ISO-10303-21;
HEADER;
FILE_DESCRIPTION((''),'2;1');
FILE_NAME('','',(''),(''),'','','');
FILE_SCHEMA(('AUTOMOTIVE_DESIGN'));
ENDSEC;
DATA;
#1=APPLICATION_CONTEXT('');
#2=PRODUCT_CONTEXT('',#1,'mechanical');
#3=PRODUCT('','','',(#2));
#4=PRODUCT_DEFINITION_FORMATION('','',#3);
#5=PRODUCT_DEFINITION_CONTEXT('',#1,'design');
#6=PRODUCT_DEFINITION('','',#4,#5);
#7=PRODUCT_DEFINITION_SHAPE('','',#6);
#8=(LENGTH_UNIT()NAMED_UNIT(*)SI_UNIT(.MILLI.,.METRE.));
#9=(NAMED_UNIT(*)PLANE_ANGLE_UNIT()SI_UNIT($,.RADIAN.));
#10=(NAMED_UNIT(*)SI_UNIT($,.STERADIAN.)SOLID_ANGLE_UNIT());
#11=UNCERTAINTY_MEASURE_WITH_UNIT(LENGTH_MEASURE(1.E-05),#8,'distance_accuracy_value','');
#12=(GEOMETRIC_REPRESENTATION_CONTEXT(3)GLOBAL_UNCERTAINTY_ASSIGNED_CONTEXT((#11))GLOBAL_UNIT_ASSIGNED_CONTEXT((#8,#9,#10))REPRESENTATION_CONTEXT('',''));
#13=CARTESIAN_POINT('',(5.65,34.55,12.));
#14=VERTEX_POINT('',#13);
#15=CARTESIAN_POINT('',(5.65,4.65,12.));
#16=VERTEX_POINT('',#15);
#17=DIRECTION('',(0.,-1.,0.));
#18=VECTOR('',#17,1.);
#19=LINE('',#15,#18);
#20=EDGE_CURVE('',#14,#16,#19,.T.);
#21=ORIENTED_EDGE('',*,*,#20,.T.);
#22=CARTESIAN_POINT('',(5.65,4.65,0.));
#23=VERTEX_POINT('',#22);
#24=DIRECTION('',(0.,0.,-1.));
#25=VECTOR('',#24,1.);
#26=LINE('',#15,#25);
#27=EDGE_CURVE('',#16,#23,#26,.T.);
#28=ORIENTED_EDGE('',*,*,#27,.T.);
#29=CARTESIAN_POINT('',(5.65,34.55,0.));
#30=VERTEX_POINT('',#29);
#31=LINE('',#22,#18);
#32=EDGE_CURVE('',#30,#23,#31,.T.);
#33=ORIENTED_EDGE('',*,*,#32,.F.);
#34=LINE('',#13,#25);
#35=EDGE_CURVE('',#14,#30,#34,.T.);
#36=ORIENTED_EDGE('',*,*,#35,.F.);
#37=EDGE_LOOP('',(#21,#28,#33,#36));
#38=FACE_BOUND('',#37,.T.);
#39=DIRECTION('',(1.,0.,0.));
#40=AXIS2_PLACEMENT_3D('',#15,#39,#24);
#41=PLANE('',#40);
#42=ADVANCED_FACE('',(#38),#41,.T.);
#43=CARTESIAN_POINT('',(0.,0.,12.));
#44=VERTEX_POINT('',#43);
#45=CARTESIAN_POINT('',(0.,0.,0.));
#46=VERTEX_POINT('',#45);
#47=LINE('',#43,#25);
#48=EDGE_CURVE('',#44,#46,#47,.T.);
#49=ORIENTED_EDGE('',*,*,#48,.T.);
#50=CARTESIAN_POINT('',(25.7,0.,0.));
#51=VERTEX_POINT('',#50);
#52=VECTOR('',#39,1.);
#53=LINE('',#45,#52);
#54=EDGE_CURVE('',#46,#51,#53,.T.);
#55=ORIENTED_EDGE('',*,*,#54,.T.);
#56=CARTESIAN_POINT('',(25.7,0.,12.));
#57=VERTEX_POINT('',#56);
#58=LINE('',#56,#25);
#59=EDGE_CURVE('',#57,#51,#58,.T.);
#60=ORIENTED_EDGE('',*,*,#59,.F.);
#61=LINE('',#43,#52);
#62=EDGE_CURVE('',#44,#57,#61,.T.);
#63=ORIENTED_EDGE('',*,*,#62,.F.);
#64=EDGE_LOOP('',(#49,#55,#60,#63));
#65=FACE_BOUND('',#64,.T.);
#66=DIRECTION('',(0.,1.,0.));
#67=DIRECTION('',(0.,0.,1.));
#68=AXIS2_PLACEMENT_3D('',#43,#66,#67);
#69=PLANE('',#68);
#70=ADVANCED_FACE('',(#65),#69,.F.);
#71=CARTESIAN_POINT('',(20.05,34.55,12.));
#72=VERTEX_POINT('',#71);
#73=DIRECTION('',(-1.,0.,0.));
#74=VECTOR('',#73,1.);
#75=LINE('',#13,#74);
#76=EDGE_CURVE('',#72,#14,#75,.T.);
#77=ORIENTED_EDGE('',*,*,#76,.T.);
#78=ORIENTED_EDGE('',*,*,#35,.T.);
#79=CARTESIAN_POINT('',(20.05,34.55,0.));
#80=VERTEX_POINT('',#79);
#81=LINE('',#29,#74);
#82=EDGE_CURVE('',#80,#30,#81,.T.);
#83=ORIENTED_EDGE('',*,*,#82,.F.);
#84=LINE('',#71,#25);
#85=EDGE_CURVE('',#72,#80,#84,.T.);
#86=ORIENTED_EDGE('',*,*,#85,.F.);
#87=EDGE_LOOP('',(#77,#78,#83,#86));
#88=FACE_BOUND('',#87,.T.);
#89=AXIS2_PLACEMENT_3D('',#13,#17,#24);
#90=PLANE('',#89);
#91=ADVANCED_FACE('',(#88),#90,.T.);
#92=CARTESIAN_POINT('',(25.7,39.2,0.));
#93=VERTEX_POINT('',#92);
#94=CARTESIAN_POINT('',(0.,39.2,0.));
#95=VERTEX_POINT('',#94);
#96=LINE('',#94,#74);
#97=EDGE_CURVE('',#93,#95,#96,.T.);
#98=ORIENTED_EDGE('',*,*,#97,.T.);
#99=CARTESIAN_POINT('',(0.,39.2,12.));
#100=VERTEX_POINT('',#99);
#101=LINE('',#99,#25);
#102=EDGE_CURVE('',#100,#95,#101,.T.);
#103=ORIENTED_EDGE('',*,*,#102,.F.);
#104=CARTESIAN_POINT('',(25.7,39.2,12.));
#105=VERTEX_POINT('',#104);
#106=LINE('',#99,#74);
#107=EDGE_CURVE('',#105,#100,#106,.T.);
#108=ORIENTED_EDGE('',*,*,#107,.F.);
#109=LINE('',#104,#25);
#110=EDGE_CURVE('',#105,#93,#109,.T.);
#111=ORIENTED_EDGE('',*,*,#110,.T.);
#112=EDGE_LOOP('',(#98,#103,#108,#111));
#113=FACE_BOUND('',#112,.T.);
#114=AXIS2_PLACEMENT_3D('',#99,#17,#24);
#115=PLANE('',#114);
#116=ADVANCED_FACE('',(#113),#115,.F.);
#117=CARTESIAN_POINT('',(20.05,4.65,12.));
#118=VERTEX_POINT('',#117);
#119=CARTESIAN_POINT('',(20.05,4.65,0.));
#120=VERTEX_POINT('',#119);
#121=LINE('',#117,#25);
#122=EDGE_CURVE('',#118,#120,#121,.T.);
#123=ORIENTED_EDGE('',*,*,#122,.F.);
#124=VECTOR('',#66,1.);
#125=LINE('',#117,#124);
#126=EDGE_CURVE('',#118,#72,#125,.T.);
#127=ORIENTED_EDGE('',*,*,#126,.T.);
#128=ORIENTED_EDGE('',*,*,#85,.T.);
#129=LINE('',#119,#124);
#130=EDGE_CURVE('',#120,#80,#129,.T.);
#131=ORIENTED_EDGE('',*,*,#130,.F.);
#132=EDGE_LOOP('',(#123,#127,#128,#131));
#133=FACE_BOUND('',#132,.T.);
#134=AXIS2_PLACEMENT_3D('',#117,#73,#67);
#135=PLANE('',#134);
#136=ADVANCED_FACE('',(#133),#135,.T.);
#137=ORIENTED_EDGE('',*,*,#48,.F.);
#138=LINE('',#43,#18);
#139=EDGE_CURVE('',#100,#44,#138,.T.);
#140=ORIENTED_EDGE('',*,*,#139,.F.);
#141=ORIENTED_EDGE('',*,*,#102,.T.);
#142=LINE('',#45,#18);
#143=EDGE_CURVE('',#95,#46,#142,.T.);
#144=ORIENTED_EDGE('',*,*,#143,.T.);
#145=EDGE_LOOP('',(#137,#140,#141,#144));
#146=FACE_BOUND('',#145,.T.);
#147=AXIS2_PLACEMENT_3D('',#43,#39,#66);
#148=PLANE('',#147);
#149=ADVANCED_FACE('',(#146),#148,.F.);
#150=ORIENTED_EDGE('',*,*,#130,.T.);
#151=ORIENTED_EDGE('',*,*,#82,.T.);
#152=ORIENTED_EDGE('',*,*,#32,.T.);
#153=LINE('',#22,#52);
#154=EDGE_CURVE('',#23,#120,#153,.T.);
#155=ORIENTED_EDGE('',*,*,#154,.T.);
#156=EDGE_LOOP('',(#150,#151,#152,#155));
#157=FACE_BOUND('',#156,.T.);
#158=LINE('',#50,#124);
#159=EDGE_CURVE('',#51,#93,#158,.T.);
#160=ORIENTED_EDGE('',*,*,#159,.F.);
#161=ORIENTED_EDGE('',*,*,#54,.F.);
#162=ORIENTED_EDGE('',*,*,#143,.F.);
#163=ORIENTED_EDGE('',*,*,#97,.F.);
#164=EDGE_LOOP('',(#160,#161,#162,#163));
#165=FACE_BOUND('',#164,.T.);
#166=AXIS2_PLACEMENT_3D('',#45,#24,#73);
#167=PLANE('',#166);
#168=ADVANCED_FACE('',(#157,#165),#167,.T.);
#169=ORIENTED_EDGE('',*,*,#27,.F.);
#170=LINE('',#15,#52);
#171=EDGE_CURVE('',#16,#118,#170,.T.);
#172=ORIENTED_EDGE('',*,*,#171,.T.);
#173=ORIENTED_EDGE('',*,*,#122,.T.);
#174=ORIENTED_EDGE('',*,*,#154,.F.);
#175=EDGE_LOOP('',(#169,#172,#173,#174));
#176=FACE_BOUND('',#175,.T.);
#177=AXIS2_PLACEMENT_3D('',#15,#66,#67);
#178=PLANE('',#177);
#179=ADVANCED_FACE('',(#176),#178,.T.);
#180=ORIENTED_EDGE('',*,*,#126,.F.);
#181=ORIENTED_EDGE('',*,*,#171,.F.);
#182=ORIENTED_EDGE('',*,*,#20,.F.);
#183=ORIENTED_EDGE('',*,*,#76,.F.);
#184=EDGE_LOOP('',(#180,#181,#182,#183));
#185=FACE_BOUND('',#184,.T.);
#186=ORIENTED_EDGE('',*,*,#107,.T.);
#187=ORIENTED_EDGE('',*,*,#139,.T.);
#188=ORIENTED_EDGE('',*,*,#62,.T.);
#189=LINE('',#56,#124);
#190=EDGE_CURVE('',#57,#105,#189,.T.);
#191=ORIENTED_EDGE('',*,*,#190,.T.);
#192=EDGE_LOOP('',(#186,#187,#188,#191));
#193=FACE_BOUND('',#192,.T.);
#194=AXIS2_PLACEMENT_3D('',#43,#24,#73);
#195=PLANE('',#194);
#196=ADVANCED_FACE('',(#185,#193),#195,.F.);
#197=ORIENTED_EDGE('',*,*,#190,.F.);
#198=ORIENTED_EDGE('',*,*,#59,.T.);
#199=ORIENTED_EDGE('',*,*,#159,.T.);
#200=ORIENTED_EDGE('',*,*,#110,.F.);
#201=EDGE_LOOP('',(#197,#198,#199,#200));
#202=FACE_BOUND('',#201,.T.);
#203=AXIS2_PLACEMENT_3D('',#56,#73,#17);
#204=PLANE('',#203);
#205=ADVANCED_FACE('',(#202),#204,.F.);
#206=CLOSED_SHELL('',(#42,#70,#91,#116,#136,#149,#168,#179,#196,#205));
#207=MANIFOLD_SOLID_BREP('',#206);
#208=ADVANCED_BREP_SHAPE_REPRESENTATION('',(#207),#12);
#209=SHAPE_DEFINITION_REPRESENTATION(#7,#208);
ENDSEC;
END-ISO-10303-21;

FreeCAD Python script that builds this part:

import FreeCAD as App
import Part
import Sketcher
from FreeCAD import Vector

doc = App.newDocument("Part")
body = doc.addObject("PartDesign::Body", "Body")

# Sketch on XY plane
sketch1 = body.newObject("Sketcher::SketchObject", "Sketch")
sketch1.AttachmentSupport = (doc.getObject("XY_Plane"), [""])
sketch1.MapMode = "FlatFace"
sketch1.addGeometry(Part.LineSegment(Vector(0, 39, 0), Vector(0, 0, 0)), False)
sketch1.addGeometry(Part.LineSegment(Vector(0, 0, 0), Vector(26, 0, 0)), False)
sketch1.addGeometry(Part.LineSegment(Vector(26, 0, 0), Vector(26, 39, 0)), False)
sketch1.addGeometry(Part.LineSegment(Vector(26, 39, 0), Vector(0, 39, 0)), False)
sketch1.addGeometry(Part.LineSegment(Vector(20, 5, 0), Vector(6, 5, 0)), False)
sketch1.addGeometry(Part.LineSegment(Vector(6, 5, 0), Vector(6, 35, 0)), False)
sketch1.addGeometry(Part.LineSegment(Vector(6, 35, 0), Vector(20, 35, 0)), False)
sketch1.addGeometry(Part.LineSegment(Vector(20, 35, 0), Vector(20, 5, 0)), False)
sketch1.addConstraint(Sketcher.Constraint("Coincident", 0, 2, 1, 1))
sketch1.addConstraint(Sketcher.Constraint("Coincident", 1, 2, 2, 1))
sketch1.addConstraint(Sketcher.Constraint("Coincident", 2, 2, 3, 1))
sketch1.addConstraint(Sketcher.Constraint("Coincident", 3, 2, 0, 1))
sketch1.addConstraint(Sketcher.Constraint("Coincident", 4, 2, 5, 1))
sketch1.addConstraint(Sketcher.Constraint("Coincident", 5, 2, 6, 1))
sketch1.addConstraint(Sketcher.Constraint("Coincident", 6, 2, 7, 1))
sketch1.addConstraint(Sketcher.Constraint("Coincident", 7, 2, 4, 1))
sketch1.addConstraint(Sketcher.Constraint("Vertical", 0))
sketch1.addConstraint(Sketcher.Constraint("Horizontal", 1))
sketch1.addConstraint(Sketcher.Constraint("Vertical", 2))
sketch1.addConstraint(Sketcher.Constraint("Horizontal", 3))
sketch1.addConstraint(Sketcher.Constraint("Horizontal", 4))
sketch1.addConstraint(Sketcher.Constraint("Vertical", 5))
sketch1.addConstraint(Sketcher.Constraint("Horizontal", 6))
sketch1.addConstraint(Sketcher.Constraint("Vertical", 7))
sketch1.addConstraint(Sketcher.Constraint("Coincident", 0, 2, -1, 1))
sketch1.addConstraint(Sketcher.Constraint("DistanceX", 1, 1, 1, 2, 25.7))
sketch1.addConstraint(Sketcher.Constraint("DistanceX", 4, 2, 4, 1, 14.4))
sketch1.addConstraint(Sketcher.Constraint("DistanceY", 0, 2, 0, 1, 39.2))
sketch1.addConstraint(Sketcher.Constraint("DistanceY", 5, 1, 5, 2, 29.9))
sketch1.addConstraint(Sketcher.Constraint("DistanceX", -1, 1, 4, 2, 5.65))
sketch1.addConstraint(Sketcher.Constraint("DistanceY", -1, 1, 4, 2, 4.65))
pad1 = body.newObject("PartDesign::Pad", "Pad")
pad1.Profile = sketch1
pad1.Length = 12

doc.recompute()
